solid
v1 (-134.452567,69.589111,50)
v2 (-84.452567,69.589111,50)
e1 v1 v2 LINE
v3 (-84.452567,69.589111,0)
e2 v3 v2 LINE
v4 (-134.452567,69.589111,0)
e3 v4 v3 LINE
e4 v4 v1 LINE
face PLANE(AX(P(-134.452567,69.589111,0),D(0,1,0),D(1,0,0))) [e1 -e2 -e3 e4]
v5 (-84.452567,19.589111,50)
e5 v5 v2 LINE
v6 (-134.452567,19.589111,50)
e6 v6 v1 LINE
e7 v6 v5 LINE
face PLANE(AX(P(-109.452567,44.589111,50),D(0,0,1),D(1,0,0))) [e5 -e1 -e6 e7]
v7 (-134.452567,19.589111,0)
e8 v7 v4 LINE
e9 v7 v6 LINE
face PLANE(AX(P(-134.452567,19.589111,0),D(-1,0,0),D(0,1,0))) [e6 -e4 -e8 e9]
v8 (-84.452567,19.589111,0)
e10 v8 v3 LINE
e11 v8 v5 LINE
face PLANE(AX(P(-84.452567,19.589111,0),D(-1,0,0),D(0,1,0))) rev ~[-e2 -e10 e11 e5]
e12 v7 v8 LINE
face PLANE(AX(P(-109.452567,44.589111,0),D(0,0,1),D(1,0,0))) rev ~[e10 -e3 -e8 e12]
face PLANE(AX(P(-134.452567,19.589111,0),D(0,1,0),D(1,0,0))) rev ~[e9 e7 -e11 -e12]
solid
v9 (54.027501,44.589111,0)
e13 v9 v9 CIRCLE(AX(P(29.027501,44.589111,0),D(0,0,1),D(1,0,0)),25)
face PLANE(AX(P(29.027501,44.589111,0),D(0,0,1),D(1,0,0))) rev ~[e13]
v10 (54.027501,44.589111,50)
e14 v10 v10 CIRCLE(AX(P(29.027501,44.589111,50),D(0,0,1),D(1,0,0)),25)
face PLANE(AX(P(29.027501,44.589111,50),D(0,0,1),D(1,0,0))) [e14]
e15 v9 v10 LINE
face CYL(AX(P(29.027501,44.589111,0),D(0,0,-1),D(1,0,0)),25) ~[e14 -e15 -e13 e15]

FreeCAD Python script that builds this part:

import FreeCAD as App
import Part
import Sketcher

doc = App.newDocument("Part")
body = doc.addObject("PartDesign::Body", "Body")
body.AllowCompound = True

# Sketch on XY plane
sketch1 = doc.addObject("Sketcher::SketchObject", "Sketch")
body.addObject(sketch1)
sketch1.AttachmentSupport = (doc.XY_Plane, [""])
sketch1.MapMode = "FlatFace"
sketch1.addGeometry([
    Part.LineSegment(App.Vector(-134.452567, 69.589111, 0), App.Vector(-134.452567, 19.589111, 0)),
    Part.LineSegment(App.Vector(-134.452567, 19.589111, 0), App.Vector(-84.452567, 19.589111, 0)),
    Part.LineSegment(App.Vector(-84.452567, 19.589111, 0), App.Vector(-84.452567, 69.589111, 0)),
    Part.LineSegment(App.Vector(-84.452567, 69.589111, 0), App.Vector(-134.452567, 69.589111, 0)),
], False)
sketch1.addConstraint([
    Sketcher.Constraint("Coincident", 0, 2, 1, 1),
    Sketcher.Constraint("Coincident", 1, 2, 2, 1),
    Sketcher.Constraint("Coincident", 2, 2, 3, 1),
    Sketcher.Constraint("Coincident", 3, 2, 0, 1),
    Sketcher.Constraint("Vertical", 0),
    Sketcher.Constraint("Horizontal", 1),
    Sketcher.Constraint("Vertical", 2),
    Sketcher.Constraint("Horizontal", 3),
    Sketcher.Constraint("Equal", 3, 0),
    Sketcher.Constraint("DistanceX", 1, 1, 1, 2, 50.0),
    Sketcher.Constraint("DistanceY", -1, 1, 0, 2, 19.589111),
    Sketcher.Constraint("DistanceX", 0, 2, -1, 1, 134.452567),
])
pad1 = doc.addObject("PartDesign::Pad", "Pad")
body.addObject(pad1)
pad1.Profile = sketch1
pad1.Length = 50

# Sketch on XY plane
sketch2 = doc.addObject("Sketcher::SketchObject", "Sketch001")
body.addObject(sketch2)
sketch2.AttachmentSupport = (doc.XY_Plane, [""])
sketch2.MapMode = "FlatFace"
sketch2.addGeometry([
    Part.LineSegment(App.Vector(-134.452567, 69.589111, 0), App.Vector(-134.452567, 19.589111, 0)),  # 0
    Part.LineSegment(App.Vector(-134.452567, 19.589111, 0), App.Vector(-84.452567, 19.589111, 0)),  # 1
    Part.LineSegment(App.Vector(-84.452567, 19.589111, 0), App.Vector(-84.452567, 69.589111, 0)),  # 2
    Part.LineSegment(App.Vector(-84.452567, 69.589111, 0), App.Vector(-134.452567, 69.589111, 0)),  # 3
    Part.Circle(App.Vector(29.027501, 44.589111, 0), App.Vector(0, 0, 1), 25),  # 4
], False)
sketch2.addConstraint([
    Sketcher.Constraint("Coincident", 0, 2, 1, 1),
    Sketcher.Constraint("Coincident", 1, 2, 2, 1),
    Sketcher.Constraint("Coincident", 2, 2, 3, 1),
    Sketcher.Constraint("Coincident", 3, 2, 0, 1),
    Sketcher.Constraint("Vertical", 0),
    Sketcher.Constraint("Horizontal", 1),
    Sketcher.Constraint("Vertical", 2),
    Sketcher.Constraint("Horizontal", 3),
    Sketcher.Constraint("Equal", 3, 0),
    Sketcher.Constraint("Diameter", 4, 50.0),
    Sketcher.Constraint("DistanceX", 1, 1, 1, 2, 50.0),
    Sketcher.Constraint("DistanceY", 0, 2, 4, 3, 25.0),
    Sketcher.Constraint("DistanceX", -1, 1, 4, 3, 29.027501),
    Sketcher.Constraint("DistanceY", -1, 1, 4, 3, 44.589111),
    Sketcher.Constraint("DistanceX", 1, 2, 4, 3, 113.480068),
])
pad2 = doc.addObject("PartDesign::Pad", "Pad001")
body.addObject(pad2)
pad2.Profile = sketch2
pad2.Length = 50

doc.recompute()
